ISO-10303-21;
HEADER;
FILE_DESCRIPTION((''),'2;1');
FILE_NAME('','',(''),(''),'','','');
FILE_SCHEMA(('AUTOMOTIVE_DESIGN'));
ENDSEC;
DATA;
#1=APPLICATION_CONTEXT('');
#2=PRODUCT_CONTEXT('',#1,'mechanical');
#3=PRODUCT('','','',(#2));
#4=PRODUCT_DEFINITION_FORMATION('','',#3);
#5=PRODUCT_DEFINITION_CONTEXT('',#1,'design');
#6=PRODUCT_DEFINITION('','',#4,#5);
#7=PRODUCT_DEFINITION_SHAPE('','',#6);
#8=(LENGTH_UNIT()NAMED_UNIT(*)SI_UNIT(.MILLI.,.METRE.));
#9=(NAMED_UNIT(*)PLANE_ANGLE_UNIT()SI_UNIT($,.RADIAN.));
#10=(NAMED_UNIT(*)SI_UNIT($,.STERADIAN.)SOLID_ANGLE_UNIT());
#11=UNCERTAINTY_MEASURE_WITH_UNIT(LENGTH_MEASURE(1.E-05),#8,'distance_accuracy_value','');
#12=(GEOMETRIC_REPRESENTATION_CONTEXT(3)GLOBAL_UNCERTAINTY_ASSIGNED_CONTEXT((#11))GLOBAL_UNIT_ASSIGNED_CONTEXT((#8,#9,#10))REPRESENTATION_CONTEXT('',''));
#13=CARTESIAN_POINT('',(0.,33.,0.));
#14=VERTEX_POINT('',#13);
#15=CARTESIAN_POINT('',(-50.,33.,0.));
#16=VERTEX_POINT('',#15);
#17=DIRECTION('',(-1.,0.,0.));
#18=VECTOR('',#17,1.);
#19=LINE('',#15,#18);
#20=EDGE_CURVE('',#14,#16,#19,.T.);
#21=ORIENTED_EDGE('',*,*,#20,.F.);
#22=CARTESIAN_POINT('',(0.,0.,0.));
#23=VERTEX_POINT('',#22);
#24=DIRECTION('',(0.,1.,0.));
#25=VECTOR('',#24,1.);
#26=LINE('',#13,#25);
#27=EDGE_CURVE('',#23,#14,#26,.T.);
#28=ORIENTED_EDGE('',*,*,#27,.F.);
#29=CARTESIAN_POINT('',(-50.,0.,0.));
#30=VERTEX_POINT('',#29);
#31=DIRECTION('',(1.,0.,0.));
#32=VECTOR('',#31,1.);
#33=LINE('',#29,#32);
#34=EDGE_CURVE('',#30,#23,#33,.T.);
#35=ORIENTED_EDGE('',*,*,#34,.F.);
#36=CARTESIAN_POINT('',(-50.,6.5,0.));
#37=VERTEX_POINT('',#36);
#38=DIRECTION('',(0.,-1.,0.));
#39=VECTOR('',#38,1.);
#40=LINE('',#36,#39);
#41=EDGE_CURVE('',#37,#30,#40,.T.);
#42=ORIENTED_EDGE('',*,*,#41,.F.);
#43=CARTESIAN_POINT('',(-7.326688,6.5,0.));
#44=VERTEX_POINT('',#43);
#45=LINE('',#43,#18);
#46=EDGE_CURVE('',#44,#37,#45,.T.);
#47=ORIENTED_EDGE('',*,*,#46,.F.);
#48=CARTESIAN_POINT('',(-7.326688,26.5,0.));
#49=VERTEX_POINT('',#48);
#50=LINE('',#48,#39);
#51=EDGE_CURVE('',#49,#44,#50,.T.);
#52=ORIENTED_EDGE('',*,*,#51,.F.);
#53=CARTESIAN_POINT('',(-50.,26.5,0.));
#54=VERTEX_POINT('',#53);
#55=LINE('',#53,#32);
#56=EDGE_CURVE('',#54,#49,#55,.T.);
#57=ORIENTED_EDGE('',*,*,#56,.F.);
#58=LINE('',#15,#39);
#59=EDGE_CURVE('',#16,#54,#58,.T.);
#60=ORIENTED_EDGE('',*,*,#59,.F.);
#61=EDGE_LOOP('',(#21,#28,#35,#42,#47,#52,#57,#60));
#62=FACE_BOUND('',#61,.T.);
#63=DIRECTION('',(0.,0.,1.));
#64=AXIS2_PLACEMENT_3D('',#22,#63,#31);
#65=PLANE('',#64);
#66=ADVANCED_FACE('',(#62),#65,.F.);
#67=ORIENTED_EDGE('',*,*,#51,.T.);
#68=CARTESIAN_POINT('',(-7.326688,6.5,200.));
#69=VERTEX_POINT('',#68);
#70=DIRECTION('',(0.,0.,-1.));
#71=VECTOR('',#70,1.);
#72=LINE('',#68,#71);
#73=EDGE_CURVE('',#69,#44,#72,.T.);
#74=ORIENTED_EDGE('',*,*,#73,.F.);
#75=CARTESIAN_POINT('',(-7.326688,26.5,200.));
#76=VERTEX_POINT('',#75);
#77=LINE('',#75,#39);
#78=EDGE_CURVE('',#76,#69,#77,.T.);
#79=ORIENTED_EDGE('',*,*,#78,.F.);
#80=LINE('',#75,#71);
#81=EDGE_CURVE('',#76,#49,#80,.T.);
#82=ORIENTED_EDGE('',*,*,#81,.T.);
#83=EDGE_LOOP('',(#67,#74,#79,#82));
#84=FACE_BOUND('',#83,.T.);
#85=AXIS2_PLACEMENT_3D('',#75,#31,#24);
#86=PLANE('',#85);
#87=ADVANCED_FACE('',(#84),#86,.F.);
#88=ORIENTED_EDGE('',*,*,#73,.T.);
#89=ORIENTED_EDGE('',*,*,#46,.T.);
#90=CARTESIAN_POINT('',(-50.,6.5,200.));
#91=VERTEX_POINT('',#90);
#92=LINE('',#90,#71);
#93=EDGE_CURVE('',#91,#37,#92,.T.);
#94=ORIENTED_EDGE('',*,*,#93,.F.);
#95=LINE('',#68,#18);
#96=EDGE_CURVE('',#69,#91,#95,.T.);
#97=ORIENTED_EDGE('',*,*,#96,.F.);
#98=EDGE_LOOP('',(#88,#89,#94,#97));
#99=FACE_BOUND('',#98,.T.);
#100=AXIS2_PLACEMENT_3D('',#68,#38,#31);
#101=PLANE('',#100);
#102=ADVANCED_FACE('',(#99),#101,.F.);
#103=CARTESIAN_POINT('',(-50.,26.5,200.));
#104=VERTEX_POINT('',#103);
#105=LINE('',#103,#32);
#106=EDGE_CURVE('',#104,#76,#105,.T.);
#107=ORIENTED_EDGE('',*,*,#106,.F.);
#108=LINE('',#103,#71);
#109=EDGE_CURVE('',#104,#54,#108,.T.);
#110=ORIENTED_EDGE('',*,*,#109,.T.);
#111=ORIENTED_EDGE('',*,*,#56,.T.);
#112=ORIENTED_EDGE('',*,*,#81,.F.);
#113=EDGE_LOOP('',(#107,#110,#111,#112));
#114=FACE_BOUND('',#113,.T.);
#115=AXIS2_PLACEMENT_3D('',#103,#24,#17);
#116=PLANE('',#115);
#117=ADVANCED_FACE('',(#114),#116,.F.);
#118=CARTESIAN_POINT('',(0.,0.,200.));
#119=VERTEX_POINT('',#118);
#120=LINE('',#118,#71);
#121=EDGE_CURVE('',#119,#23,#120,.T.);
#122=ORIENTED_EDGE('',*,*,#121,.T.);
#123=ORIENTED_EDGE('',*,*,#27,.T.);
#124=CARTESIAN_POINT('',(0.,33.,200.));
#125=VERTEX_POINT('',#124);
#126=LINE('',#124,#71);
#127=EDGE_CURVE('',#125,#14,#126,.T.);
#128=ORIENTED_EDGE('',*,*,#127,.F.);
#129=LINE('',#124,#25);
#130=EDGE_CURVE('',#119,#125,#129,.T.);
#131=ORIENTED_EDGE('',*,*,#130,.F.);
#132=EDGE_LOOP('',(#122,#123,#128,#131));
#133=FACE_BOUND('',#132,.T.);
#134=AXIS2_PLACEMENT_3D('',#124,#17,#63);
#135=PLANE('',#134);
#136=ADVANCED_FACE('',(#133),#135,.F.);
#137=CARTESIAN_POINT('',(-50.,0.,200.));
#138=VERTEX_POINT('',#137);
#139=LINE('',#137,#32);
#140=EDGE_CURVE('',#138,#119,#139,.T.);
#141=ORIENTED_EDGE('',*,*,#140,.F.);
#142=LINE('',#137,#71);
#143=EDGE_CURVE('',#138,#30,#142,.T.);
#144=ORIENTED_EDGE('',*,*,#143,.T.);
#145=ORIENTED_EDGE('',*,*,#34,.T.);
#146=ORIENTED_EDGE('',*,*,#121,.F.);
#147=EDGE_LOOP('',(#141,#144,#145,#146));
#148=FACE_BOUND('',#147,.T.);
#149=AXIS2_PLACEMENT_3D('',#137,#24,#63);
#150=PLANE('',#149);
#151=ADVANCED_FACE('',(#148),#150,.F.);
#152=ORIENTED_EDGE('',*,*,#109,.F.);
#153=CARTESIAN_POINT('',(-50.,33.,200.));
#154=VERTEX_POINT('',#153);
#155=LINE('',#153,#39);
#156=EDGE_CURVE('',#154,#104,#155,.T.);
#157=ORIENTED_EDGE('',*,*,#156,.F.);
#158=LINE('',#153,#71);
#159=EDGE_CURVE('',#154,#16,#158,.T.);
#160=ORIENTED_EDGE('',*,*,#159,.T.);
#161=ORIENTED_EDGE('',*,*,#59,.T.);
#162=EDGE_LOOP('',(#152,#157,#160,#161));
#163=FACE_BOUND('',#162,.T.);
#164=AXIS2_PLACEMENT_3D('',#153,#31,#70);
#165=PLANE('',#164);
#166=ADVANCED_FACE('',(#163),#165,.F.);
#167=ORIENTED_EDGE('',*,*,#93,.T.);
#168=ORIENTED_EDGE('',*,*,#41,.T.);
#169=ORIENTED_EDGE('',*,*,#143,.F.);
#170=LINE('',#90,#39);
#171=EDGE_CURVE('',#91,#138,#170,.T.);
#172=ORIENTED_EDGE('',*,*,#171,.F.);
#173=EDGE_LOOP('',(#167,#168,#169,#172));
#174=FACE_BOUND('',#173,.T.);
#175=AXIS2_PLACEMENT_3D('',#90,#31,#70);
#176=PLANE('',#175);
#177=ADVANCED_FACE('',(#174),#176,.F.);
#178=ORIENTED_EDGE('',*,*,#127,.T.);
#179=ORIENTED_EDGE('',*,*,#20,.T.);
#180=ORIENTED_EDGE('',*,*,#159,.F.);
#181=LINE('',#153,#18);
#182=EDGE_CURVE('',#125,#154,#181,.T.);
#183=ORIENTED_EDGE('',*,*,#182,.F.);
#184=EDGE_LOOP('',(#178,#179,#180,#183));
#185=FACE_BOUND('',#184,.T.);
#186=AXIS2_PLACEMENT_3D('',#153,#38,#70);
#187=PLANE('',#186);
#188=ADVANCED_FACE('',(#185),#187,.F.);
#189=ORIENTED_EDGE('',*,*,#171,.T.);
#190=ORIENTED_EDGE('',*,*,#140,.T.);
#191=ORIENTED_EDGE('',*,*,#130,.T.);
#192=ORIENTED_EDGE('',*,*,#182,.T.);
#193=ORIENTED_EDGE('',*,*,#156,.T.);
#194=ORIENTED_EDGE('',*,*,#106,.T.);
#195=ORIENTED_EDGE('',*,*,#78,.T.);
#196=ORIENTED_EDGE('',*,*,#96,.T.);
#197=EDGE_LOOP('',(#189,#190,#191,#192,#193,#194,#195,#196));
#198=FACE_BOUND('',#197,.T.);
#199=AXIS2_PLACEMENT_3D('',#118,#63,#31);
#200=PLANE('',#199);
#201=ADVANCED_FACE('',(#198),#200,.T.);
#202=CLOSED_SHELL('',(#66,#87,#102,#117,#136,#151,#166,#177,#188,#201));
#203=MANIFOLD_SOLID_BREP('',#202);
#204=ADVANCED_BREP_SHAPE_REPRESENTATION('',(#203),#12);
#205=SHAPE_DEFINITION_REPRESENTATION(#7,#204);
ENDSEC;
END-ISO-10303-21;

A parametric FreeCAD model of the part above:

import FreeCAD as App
import Part
import Sketcher
Q = App.Units.Quantity


def add_polygon(sketch, points):
    """Adds a closed chain of lines whose ends are joined by coincident constraints."""
    first, n = sketch.GeometryCount, len(points)
    for a, b in zip(points, points[1:] + points[:1]):
        sketch.addGeometry(Part.LineSegment(App.Vector(*a, 0), App.Vector(*b, 0)), False)
    for i in range(n):
        sketch.addConstraint(Sketcher.Constraint("Coincident", first + i, 2, first + (i + 1) % n, 1))

doc = App.newDocument("Part")
body = doc.addObject("PartDesign::Body", "Body")

# Sketch on XY plane
sketch1 = body.newObject("Sketcher::SketchObject", "Sketch")
sketch1.AttachmentSupport = (doc.getObject("XY_Plane"), [""])
sketch1.MapMode = "FlatFace"
add_polygon(sketch1, [(-50, 26), (-7, 26), (-7, 6), (-50, 6), (-50, 0), (0, 0), (0, 33), (-50, 33)])  # lines 0-7
sketch1.addConstraint([
    Sketcher.Constraint("Horizontal", 0),
    Sketcher.Constraint("Vertical", 1),
    Sketcher.Constraint("Horizontal", 2),
    Sketcher.Constraint("Vertical", 3),
    Sketcher.Constraint("Horizontal", 4),
    Sketcher.Constraint("Vertical", 5),
    Sketcher.Constraint("Horizontal", 6),
    Sketcher.Constraint("Vertical", 7),
    Sketcher.Constraint("Coincident", 4, 2, -1, 1),
    Sketcher.Constraint("Vertical", 3, 2, 6, 2),
    Sketcher.Constraint("Equal", 3, 7),
    Sketcher.Constraint("DistanceX", 4, 1, 4, 2, Q("50 mm")),
    Sketcher.Constraint("DistanceY", 1, 2, 1, 1, Q("20 mm")),
    Sketcher.Constraint("DistanceY", 5, 1, 5, 2, Q("33 mm")),
    Sketcher.Constraint("DistanceX", 0, 1, 0, 2, Q("42.673312 mm")),
])
pad1 = body.newObject("PartDesign::Pad", "Pad")
pad1.Profile = sketch1
pad1.Length = 200

doc.recompute()
